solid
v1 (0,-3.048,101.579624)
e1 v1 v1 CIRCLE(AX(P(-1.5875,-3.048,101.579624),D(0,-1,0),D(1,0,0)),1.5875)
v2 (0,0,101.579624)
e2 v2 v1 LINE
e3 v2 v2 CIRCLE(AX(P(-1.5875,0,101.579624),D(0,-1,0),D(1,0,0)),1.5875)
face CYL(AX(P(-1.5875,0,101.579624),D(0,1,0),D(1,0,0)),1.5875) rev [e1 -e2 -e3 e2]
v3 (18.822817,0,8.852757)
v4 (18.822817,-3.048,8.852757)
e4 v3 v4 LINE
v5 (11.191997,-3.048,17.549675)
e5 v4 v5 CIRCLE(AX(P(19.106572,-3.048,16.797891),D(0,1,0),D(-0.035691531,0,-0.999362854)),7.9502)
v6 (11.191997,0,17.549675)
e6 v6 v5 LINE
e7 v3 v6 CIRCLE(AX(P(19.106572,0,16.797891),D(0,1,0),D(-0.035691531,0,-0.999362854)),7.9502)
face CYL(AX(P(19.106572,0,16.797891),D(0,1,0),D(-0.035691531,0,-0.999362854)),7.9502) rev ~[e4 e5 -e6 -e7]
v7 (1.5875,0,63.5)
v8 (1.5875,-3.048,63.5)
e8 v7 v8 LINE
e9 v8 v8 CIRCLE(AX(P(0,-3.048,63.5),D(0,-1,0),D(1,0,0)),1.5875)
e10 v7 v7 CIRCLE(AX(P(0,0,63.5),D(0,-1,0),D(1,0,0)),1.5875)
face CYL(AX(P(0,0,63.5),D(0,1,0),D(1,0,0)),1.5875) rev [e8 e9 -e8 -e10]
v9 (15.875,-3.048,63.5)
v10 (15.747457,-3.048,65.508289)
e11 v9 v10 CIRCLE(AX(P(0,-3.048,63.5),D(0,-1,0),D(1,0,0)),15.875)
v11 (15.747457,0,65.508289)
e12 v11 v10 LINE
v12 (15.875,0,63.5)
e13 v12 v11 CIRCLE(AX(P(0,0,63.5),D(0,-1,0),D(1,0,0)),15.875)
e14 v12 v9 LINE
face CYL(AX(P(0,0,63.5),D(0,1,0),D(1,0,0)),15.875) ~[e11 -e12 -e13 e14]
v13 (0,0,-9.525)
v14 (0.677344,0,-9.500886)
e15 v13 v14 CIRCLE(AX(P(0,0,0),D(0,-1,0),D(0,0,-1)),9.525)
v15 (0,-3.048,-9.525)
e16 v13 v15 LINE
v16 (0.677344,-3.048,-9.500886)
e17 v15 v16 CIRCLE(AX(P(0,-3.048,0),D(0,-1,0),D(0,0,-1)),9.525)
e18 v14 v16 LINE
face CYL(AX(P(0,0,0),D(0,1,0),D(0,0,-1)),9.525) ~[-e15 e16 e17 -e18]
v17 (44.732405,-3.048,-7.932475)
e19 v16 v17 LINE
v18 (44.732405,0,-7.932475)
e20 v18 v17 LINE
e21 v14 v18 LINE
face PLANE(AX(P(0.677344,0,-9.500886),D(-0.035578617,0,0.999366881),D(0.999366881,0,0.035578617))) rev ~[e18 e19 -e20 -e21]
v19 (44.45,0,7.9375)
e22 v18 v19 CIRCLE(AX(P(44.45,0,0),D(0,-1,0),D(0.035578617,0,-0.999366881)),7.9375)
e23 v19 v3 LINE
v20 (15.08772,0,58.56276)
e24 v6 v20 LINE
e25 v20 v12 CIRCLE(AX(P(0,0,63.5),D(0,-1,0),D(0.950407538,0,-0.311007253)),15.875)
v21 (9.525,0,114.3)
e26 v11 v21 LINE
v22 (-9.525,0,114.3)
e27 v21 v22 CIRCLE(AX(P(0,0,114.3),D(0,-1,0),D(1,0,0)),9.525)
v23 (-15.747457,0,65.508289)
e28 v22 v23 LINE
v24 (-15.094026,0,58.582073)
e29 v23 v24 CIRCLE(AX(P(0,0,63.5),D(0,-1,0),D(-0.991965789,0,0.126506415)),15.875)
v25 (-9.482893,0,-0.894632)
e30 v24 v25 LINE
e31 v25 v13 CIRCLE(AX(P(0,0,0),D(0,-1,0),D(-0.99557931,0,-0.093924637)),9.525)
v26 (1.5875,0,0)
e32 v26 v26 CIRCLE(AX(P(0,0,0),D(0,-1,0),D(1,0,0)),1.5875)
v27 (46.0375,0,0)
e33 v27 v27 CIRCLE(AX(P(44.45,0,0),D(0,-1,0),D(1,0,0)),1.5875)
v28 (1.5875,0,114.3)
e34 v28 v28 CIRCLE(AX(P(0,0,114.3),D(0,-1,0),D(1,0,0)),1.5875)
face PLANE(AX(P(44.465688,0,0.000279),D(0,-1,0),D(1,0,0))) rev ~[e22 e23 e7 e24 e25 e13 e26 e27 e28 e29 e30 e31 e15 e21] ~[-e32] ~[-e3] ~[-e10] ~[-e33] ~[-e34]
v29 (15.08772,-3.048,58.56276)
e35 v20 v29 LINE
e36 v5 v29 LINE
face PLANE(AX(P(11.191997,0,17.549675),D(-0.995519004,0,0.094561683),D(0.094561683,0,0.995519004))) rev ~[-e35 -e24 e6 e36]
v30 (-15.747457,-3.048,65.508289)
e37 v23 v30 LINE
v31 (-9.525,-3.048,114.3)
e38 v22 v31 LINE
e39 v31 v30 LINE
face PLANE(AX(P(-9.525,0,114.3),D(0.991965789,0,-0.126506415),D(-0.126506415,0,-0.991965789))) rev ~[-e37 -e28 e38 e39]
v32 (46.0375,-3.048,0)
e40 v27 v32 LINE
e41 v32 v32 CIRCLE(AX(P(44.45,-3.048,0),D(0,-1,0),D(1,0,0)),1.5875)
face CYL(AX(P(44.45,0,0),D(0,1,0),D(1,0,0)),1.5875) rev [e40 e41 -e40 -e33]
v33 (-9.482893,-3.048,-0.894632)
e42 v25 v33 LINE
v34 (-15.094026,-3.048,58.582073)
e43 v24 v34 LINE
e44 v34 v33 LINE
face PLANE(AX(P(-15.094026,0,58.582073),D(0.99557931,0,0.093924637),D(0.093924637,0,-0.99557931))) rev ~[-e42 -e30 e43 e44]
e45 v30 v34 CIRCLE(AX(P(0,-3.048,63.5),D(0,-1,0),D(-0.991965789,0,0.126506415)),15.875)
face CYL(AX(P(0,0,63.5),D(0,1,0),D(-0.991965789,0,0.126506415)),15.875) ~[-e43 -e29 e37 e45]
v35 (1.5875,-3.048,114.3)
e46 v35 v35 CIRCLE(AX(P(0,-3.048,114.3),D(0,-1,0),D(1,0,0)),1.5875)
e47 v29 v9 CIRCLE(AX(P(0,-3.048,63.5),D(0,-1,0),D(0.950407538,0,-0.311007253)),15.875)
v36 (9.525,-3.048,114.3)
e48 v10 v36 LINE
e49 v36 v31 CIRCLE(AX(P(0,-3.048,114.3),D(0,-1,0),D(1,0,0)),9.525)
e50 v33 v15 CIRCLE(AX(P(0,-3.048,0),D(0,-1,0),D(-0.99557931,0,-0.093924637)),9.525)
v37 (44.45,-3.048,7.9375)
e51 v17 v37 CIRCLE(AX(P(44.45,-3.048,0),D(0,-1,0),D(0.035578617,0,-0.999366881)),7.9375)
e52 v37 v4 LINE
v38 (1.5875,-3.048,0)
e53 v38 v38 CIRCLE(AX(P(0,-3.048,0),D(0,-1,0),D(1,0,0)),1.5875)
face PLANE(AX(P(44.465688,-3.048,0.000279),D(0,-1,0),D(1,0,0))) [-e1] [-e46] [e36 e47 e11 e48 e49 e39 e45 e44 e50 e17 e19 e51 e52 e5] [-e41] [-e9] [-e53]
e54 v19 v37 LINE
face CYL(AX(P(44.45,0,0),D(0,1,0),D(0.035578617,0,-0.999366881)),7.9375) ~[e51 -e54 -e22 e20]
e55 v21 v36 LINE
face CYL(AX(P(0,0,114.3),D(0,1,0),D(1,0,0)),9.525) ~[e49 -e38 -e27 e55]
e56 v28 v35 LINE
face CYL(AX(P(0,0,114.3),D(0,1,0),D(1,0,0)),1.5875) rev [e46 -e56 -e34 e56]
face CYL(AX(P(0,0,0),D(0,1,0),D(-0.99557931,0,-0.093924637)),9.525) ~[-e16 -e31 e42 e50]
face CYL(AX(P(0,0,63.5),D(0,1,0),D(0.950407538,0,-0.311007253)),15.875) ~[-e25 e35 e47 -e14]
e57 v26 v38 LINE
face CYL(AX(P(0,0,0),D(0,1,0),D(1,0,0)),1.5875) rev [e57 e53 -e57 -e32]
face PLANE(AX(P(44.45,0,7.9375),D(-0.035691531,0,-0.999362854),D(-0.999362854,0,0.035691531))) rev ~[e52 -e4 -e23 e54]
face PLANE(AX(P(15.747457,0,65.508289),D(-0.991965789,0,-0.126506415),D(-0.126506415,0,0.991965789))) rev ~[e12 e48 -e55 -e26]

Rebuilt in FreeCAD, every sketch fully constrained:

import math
import FreeCAD as App
import Part
import Sketcher

V = App.Vector
Q = App.Units.Quantity

doc = App.newDocument("Part")
body = doc.addObject("PartDesign::Body", "Body")

# Sketch on XZ plane
sketch1 = body.newObject("Sketcher::SketchObject", "Sketch")
sketch1.AttachmentSupport = (doc.getObject("XZ_Plane"), [""])
sketch1.MapMode = "FlatFace"
sketch1.addGeometry(Part.ArcOfCircle(Part.Circle(V(44.5, 0, 0), V(0, 0, 1), 7.9), math.radians(-88), math.radians(90)), False)
sketch1.addGeometry(Part.LineSegment(V(44.5, 7.9, 0), V(18.8, 8.9, 0)), False)
sketch1.addGeometry(Part.ArcOfCircle(Part.Circle(V(19.1, 16.8, 0), V(0, 0, 1), 8), math.radians(175), math.radians(268)), False)
sketch1.addGeometry(Part.LineSegment(V(11.2, 17.5, 0), V(15.1, 58.6, 0)), False)
sketch1.addGeometry(Part.ArcOfCircle(Part.Circle(V(0, 63.5, 0), V(0, 0, 1), 15.9), math.radians(-18.12), math.radians(0)), False)
sketch1.addGeometry(Part.ArcOfCircle(Part.Circle(V(0, 63.5, 0), V(0, 0, 1), 15.9), math.radians(0), math.radians(7.27)), False)
sketch1.addGeometry(Part.LineSegment(V(15.7, 65.5, 0), V(9.5, 114.3, 0)), False)
sketch1.addGeometry(Part.ArcOfCircle(Part.Circle(V(0, 114.3, 0), V(0, 0, 1), 9.5), math.radians(0), math.radians(180)), False)
sketch1.addGeometry(Part.LineSegment(V(-9.5, 114.3, 0), V(-15.7, 65.5, 0)), False)
sketch1.addGeometry(Part.ArcOfCircle(Part.Circle(V(0, 63.5, 0), V(0, 0, 1), 15.9), math.radians(173), math.radians(198)), False)
sketch1.addGeometry(Part.LineSegment(V(-15.1, 58.6, 0), V(-9.5, -0.9, 0)), False)
sketch1.addGeometry(Part.ArcOfCircle(Part.Circle(V(0, 0, 0), V(0, 0, 1), 9.5), math.radians(-175), math.radians(-90)), False)
sketch1.addGeometry(Part.ArcOfCircle(Part.Circle(V(0, 0, 0), V(0, 0, 1), 9.5), math.radians(-90), math.radians(-85.92)), False)
sketch1.addGeometry(Part.LineSegment(V(0.7, -9.5, 0), V(44.7, -7.9, 0)), False)
sketch1.addGeometry(Part.Circle(V(0, 0, 0), V(0, 0, 1), 1.6), False)
sketch1.addGeometry(Part.Circle(V(44.5, 0, 0), V(0, 0, 1), 1.6), False)
sketch1.addGeometry(Part.Circle(V(0, 63.5, 0), V(0, 0, 1), 1.6), False)
sketch1.addGeometry(Part.Circle(V(-1.6, 101.6, 0), V(0, 0, 1), 1.6), False)
sketch1.addGeometry(Part.Circle(V(0, 114.3, 0), V(0, 0, 1), 1.6), False)
sketch1.addConstraint(Sketcher.Constraint("Coincident", 0, 2, 1, 1))
sketch1.addConstraint(Sketcher.Constraint("Tangent", 1, 2, 2, 2))
sketch1.addConstraint(Sketcher.Constraint("Tangent", 2, 1, 3, 1))
sketch1.addConstraint(Sketcher.Constraint("Coincident", 3, 2, 4, 1))
sketch1.addConstraint(Sketcher.Constraint("Tangent", 4, 2, 5, 1))
sketch1.addConstraint(Sketcher.Constraint("Tangent", 5, 2, 6, 1))
sketch1.addConstraint(Sketcher.Constraint("Coincident", 6, 2, 7, 1))
sketch1.addConstraint(Sketcher.Constraint("Coincident", 7, 2, 8, 1))
sketch1.addConstraint(Sketcher.Constraint("Tangent", 8, 2, 9, 1))
sketch1.addConstraint(Sketcher.Constraint("Coincident", 9, 2, 10, 1))
sketch1.addConstraint(Sketcher.Constraint("Tangent", 10, 2, 11, 1))
sketch1.addConstraint(Sketcher.Constraint("Tangent", 11, 2, 12, 1))
sketch1.addConstraint(Sketcher.Constraint("Coincident", 12, 2, 13, 1))
sketch1.addConstraint(Sketcher.Constraint("Tangent", 13, 2, 0, 1))
sketch1.addConstraint(Sketcher.Constraint("Coincident", 11, 3, -1, 1))
sketch1.addConstraint(Sketcher.Constraint("Coincident", 14, 3, -1, 1))
sketch1.addConstraint(Sketcher.Constraint("Coincident", 9, 3, 4, 3))
sketch1.addConstraint(Sketcher.Constraint("Coincident", 15, 3, 0, 3))
sketch1.addConstraint(Sketcher.Constraint("Coincident", 16, 3, 4, 3))
sketch1.addConstraint(Sketcher.Constraint("Coincident", 18, 3, 7, 3))
sketch1.addConstraint(Sketcher.Constraint("Equal", 4, 5))
sketch1.addConstraint(Sketcher.Constraint("Equal", 5, 9))
sketch1.addConstraint(Sketcher.Constraint("Equal", 7, 11))
sketch1.addConstraint(Sketcher.Constraint("Equal", 11, 12))
sketch1.addConstraint(Sketcher.Constraint("Equal", 14, 15))
sketch1.addConstraint(Sketcher.Constraint("Equal", 15, 16))
sketch1.addConstraint(Sketcher.Constraint("Equal", 16, 17))
sketch1.addConstraint(Sketcher.Constraint("Equal", 17, 18))
sketch1.addConstraint(Sketcher.Constraint("Symmetric", 6, 2, 7, 2, -2))
sketch1.addConstraint(Sketcher.Constraint("PointOnObject", 0, 3, -1))
sketch1.addConstraint(Sketcher.Constraint("PointOnObject", 4, 3, -2))
sketch1.addConstraint(Sketcher.Constraint("PointOnObject", 11, 2, -2))
sketch1.addConstraint(Sketcher.Constraint("Horizontal", 16, 3, 4, 2))
sketch1.addConstraint(Sketcher.Constraint("Horizontal", 18, 3, 6, 2))
sketch1.addConstraint(Sketcher.Constraint("Vertical", 15, 3, 0, 2))
sketch1.addConstraint(Sketcher.Constraint("Diameter", 14, Q("0.125 in")))
sketch1.addConstraint(Sketcher.Constraint("Radius", 0, Q("0.3125 in")))
sketch1.addConstraint(Sketcher.Constraint("Radius", 2, Q("0.313 in")))
sketch1.addConstraint(Sketcher.Constraint("Radius", 4, Q("0.625 in")))
sketch1.addConstraint(Sketcher.Constraint("Radius", 7, Q("0.375 in")))
sketch1.addConstraint(Sketcher.Constraint("DistanceY", 5, 3, 7, 3, Q("2 in")))
sketch1.addConstraint(Sketcher.Constraint("DistanceY", -1, 1, 4, 3, Q("2.5 in")))
sketch1.addConstraint(Sketcher.Constraint("DistanceX", -1, 1, 0, 3, Q("1.75 in")))
sketch1.addConstraint(Sketcher.Constraint("Distance", 10, Q("2.352 in")))
sketch1.addConstraint(Sketcher.Constraint("DistanceX", 17, 3, -1, 1, Q("0.0625 in")))
sketch1.addConstraint(Sketcher.Constraint("Distance", 1, Q("25.643522 mm")))
sketch1.addConstraint(Sketcher.Constraint("Distance", 3, Q("41.197691 mm")))
sketch1.addConstraint(Sketcher.Constraint("Distance", 13, Q("44.082972 mm")))
sketch1.addConstraint(Sketcher.Constraint("DistanceX", -1, 1, 2, 3, Q("19.106572 mm")))
sketch1.addConstraint(Sketcher.Constraint("DistanceY", -1, 1, 17, 3, Q("101.579624 mm")))
pad1 = body.newObject("PartDesign::Pad", "Pad")
pad1.Profile = sketch1
pad1.Length = Q("0.12 in")

doc.recompute()
